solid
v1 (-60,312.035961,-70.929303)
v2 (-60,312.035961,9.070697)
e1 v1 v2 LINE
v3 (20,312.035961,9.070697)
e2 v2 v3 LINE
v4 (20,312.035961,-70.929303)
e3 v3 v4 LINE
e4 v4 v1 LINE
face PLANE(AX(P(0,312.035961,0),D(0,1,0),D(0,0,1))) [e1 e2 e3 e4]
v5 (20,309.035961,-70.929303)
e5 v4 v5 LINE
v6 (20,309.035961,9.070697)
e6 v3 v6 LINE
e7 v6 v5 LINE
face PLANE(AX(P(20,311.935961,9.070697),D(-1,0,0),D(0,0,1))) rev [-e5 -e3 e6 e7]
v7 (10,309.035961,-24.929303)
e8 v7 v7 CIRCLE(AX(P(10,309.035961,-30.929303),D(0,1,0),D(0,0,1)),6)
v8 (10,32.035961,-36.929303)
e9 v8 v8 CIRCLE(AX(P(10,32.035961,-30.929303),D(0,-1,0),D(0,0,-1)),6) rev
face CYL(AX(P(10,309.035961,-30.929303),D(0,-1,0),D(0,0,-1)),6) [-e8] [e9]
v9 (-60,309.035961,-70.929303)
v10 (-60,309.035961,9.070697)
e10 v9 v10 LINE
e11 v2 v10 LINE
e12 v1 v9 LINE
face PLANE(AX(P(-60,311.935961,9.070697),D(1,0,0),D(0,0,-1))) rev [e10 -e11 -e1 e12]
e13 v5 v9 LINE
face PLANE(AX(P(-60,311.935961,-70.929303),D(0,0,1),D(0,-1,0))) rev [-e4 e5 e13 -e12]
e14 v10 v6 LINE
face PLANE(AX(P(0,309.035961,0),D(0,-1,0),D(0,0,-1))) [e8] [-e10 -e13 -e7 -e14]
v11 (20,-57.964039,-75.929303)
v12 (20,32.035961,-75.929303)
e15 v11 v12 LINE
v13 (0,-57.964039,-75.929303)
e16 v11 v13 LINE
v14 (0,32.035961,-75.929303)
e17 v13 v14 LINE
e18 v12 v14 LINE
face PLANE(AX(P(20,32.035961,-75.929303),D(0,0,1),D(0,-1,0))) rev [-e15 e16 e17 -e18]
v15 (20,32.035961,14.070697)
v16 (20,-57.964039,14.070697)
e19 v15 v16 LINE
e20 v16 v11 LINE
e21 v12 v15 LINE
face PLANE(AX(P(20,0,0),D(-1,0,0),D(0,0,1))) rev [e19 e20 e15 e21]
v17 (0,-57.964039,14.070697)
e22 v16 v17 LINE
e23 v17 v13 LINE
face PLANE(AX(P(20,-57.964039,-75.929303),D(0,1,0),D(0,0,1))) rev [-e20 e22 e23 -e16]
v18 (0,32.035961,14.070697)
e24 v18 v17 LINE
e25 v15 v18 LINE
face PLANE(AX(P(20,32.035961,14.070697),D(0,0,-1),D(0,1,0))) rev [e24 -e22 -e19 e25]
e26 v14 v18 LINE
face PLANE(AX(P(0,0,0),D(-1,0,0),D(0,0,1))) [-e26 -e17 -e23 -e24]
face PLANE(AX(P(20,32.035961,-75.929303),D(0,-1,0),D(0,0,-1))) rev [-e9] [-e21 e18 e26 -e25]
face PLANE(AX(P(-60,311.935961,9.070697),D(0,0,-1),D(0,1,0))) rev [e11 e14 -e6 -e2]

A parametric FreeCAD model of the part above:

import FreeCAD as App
import Part
import Sketcher
from FreeCAD import Vector


def add_polygon(sketch, points):
    """Adds a closed chain of lines whose ends are joined by coincident constraints."""
    first, n = sketch.GeometryCount, len(points)
    for a, b in zip(points, points[1:] + points[:1]):
        sketch.addGeometry(Part.LineSegment(App.Vector(*a, 0), App.Vector(*b, 0)), False)
    for i in range(n):
        sketch.addConstraint(Sketcher.Constraint("Coincident", first + i, 2, first + (i + 1) % n, 1))

doc = App.newDocument("Part")
body = doc.addObject("PartDesign::Body", "Body")

sketch1 = doc.addObject("Sketcher::SketchObject", "Sketch")
body.addObject(sketch1)
sketch1.AttachmentSupport = (doc.YZ_Plane, [""])
sketch1.MapMode = "FlatFace"
add_polygon(sketch1, [(32, 14), (-58, 14), (-58, -76), (32, -76)])
sketch1.addConstraint(Sketcher.Constraint("Horizontal", 0))
sketch1.addConstraint(Sketcher.Constraint("Vertical", 1))
sketch1.addConstraint(Sketcher.Constraint("Horizontal", 2))
sketch1.addConstraint(Sketcher.Constraint("Vertical", 3))
sketch1.addConstraint(Sketcher.Constraint("Equal", 2, 1))
sketch1.addConstraint(Sketcher.Constraint("DistanceX", 0, 2, 0, 1, 90.0))
sketch1.addConstraint(Sketcher.Constraint("DistanceX", 0, 2, -1, 1, 57.964039))
sketch1.addConstraint(Sketcher.Constraint("DistanceY", -1, 1, 0, 2, 14.070697))
pad1 = doc.addObject("PartDesign::Pad", "Pad")
body.addObject(pad1)
pad1.Profile = sketch1
pad1.Length = 20

sketch2 = doc.addObject("Sketcher::SketchObject", "Sketch001")
body.addObject(sketch2)
sketch2.AttachmentSupport = (doc.XZ_Plane, [""])
sketch2.MapMode = "FlatFace"
sketch2.AttachmentOffset = App.Placement(Vector(0, 0, -32.035961), App.Rotation())
sketch2.addGeometry(Part.Circle(Vector(10, -31, 0), Vector(0, 0, 1), 6), False)
sketch2.addConstraint(Sketcher.Constraint("Diameter", 0, 12.0))
sketch2.addConstraint(Sketcher.Constraint("DistanceX", -1, 1, 0, 3, 10.0))
sketch2.addConstraint(Sketcher.Constraint("DistanceY", 0, 3, -1, 1, 30.929303))
pad2 = doc.addObject("PartDesign::Pad", "Pad001")
body.addObject(pad2)
pad2.Profile = sketch2
pad2.Length = 277
pad2.Reversed = True

sketch3 = doc.addObject("Sketcher::SketchObject", "Sketch002")
body.addObject(sketch3)
sketch3.AttachmentSupport = (doc.XZ_Plane, [""])
sketch3.MapMode = "FlatFace"
sketch3.AttachmentOffset = App.Placement(Vector(0, 0, -309.035961), App.Rotation())
add_polygon(sketch3, [(-60, -71), (-60, 9), (20, 9), (20, -71)])
sketch3.addConstraint(Sketcher.Constraint("Vertical", 0))
sketch3.addConstraint(Sketcher.Constraint("Horizontal", 1))
sketch3.addConstraint(Sketcher.Constraint("Vertical", 2))
sketch3.addConstraint(Sketcher.Constraint("Horizontal", 3))
sketch3.addConstraint(Sketcher.Constraint("Equal", 3, 0))
sketch3.addConstraint(Sketcher.Constraint("DistanceX", 1, 1, 1, 2, 80.0))
sketch3.addConstraint(Sketcher.Constraint("DistanceX", 0, 2, -1, 1, 60.0))
sketch3.addConstraint(Sketcher.Constraint("DistanceY", -1, 1, 0, 2, 9.070697))
pad3 = doc.addObject("PartDesign::Pad", "Pad002")
body.addObject(pad3)
pad3.Profile = sketch3
pad3.Length = 2.9
pad3.Reversed = True

sketch4 = doc.addObject("Sketcher::SketchObject", "Sketch003")
body.addObject(sketch4)
sketch4.AttachmentSupport = (doc.XZ_Plane, [""])
sketch4.MapMode = "FlatFace"
sketch4.AttachmentOffset = App.Placement(Vector(0, 0, -311.935961), App.Rotation())
add_polygon(sketch4, [(-60, -71), (-60, 9), (20, 9), (20, -71)])
sketch4.addConstraint(Sketcher.Constraint("Vertical", 0))
sketch4.addConstraint(Sketcher.Constraint("Horizontal", 1))
sketch4.addConstraint(Sketcher.Constraint("Vertical", 2))
sketch4.addConstraint(Sketcher.Constraint("Horizontal", 3))
sketch4.addConstraint(Sketcher.Constraint("Equal", 3, 0))
sketch4.addConstraint(Sketcher.Constraint("DistanceX", 1, 1, 1, 2, 80.0))
sketch4.addConstraint(Sketcher.Constraint("DistanceX", 0, 2, -1, 1, 60.0))
sketch4.addConstraint(Sketcher.Constraint("DistanceY", -1, 1, 0, 2, 9.070697))
pad4 = doc.addObject("PartDesign::Pad", "Pad003")
body.addObject(pad4)
pad4.Profile = sketch4
pad4.Length = 0.1
pad4.Reversed = True

doc.recompute()
